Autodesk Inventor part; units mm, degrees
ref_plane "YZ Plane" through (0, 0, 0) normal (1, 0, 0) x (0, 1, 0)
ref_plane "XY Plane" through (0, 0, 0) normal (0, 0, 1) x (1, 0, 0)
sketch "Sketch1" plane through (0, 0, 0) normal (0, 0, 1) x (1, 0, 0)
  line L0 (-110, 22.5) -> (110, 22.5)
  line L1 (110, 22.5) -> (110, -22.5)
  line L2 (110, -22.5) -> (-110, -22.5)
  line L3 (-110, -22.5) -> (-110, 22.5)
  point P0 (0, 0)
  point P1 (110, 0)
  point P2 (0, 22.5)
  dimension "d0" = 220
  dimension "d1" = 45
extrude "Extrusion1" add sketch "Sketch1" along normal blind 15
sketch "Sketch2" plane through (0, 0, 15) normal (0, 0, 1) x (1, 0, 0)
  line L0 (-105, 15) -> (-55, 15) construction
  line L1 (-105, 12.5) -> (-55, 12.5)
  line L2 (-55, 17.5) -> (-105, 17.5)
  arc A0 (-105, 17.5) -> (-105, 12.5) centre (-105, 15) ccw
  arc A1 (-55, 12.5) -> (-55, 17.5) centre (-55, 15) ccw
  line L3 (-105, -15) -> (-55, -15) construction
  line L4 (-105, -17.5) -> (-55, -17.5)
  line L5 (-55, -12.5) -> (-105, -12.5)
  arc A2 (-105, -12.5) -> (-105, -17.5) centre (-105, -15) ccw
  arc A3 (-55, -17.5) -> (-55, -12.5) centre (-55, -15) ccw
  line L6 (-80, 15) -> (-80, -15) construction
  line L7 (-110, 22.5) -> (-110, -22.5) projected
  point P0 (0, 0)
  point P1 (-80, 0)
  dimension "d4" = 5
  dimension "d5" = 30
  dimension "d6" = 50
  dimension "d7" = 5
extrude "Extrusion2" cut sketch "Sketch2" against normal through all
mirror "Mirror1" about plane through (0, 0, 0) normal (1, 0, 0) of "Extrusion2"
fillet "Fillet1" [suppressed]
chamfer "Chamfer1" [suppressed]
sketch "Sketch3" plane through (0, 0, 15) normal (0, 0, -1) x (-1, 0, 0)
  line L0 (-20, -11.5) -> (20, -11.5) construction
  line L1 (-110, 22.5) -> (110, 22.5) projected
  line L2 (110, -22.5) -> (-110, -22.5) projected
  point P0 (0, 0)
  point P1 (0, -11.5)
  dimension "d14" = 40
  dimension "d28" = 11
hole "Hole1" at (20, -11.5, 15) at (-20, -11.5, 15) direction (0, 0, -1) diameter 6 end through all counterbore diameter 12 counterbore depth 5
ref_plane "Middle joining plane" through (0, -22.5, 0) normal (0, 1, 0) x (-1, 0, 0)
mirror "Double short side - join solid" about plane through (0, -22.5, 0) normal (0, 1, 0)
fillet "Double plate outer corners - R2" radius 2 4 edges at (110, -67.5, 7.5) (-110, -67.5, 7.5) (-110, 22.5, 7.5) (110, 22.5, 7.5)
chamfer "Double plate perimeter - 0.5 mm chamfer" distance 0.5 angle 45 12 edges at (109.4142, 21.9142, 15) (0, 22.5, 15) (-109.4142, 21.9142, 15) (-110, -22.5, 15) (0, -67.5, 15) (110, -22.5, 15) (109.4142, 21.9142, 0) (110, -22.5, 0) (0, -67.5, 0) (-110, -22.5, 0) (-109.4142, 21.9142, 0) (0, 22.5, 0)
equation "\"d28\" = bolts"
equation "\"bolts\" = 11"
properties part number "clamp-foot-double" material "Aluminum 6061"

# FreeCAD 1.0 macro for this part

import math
import FreeCAD as App
import Part
import Sketcher

V = App.Vector
Q = App.Units.Quantity


def edges_at(feature, points):
    """Names of the edges that pass closest to the given points."""
    edges = feature.Shape.Edges
    near = lambda p: min(range(len(edges)), key=lambda i: edges[i].distToShape(Part.Vertex(*p))[0])
    return sorted({f"Edge{near(p) + 1}" for p in points})

doc = App.newDocument("Part")
body = doc.addObject("PartDesign::Body", "Body")

# Sketch on XY plane
sketch1 = body.newObject("Sketcher::SketchObject", "Sketch")
sketch1.AttachmentSupport = (doc.getObject("XY_Plane"), [""])
sketch1.MapMode = "FlatFace"
sketch1.addGeometry([
    Part.LineSegment(V(110, 22.5, 0), V(-110, 22.5, 0)),
    Part.LineSegment(V(-110, 22.5, 0), V(-110, -22.5, 0)),
    Part.LineSegment(V(-110, -22.5, 0), V(110, -22.5, 0)),
    Part.LineSegment(V(110, -22.5, 0), V(110, 22.5, 0)),
], False)
sketch1.addConstraint([
    Sketcher.Constraint("Coincident", 0, 2, 1, 1),
    Sketcher.Constraint("Coincident", 1, 2, 2, 1),
    Sketcher.Constraint("Coincident", 2, 2, 3, 1),
    Sketcher.Constraint("Coincident", 3, 2, 0, 1),
    Sketcher.Constraint("Horizontal", 0),
    Sketcher.Constraint("Vertical", 1),
    Sketcher.Constraint("Horizontal", 2),
    Sketcher.Constraint("Vertical", 3),
    Sketcher.Constraint("Symmetric", 0, 2, 2, 2, -1, 1),
    Sketcher.Constraint("DistanceX", 0, 2, 0, 1, Q("220 mm")),
    Sketcher.Constraint("DistanceY", 1, 2, 1, 1, Q("45 mm")),
])
pad1 = body.newObject("PartDesign::Pad", "Pad")
pad1.Profile = sketch1
pad1.Length = 15

# Sketch on XY plane
sketch2 = body.newObject("Sketcher::SketchObject", "Sketch001")
sketch2.AttachmentSupport = (doc.getObject("XY_Plane"), [""])
sketch2.MapMode = "FlatFace"
sketch2.AttachmentOffset = App.Placement(V(0, 0, 15), App.Rotation())
sketch2.addGeometry([
    Part.ArcOfCircle(Part.Circle(V(-105, 15, 0), V(0, 0, 1), 2.5), math.radians(90), math.radians(270)),  # 0
    Part.LineSegment(V(-105, 12.5, 0), V(-55, 12.5, 0)),  # 1
    Part.ArcOfCircle(Part.Circle(V(-55, 15, 0), V(0, 0, 1), 2.5), math.radians(-90), math.radians(90)),  # 2
    Part.LineSegment(V(-55, 17.5, 0), V(-105, 17.5, 0)),  # 3
    Part.ArcOfCircle(Part.Circle(V(-105, -15, 0), V(0, 0, 1), 2.5), math.radians(90), math.radians(270)),  # 4
    Part.LineSegment(V(-105, -17.5, 0), V(-55, -17.5, 0)),  # 5
    Part.ArcOfCircle(Part.Circle(V(-55, -15, 0), V(0, 0, 1), 2.5), math.radians(-90), math.radians(90)),  # 6
    Part.LineSegment(V(-55, -12.5, 0), V(-105, -12.5, 0)),  # 7
], False)
sketch2.addConstraint([
    Sketcher.Constraint("Tangent", 0, 2, 1, 1),
    Sketcher.Constraint("Tangent", 1, 2, 2, 1),
    Sketcher.Constraint("Tangent", 2, 2, 3, 1),
    Sketcher.Constraint("Tangent", 3, 2, 0, 1),
    Sketcher.Constraint("Tangent", 4, 2, 5, 1),
    Sketcher.Constraint("Tangent", 5, 2, 6, 1),
    Sketcher.Constraint("Tangent", 6, 2, 7, 1),
    Sketcher.Constraint("Tangent", 7, 2, 4, 1),
    Sketcher.Constraint("Horizontal", 1),
    Sketcher.Constraint("Horizontal", 3),
    Sketcher.Constraint("Horizontal", 5),
    Sketcher.Constraint("Horizontal", 7),
    Sketcher.Constraint("Equal", 2, 4),
    Sketcher.Constraint("Symmetric", 0, 3, 4, 3, -1),
    Sketcher.Constraint("Vertical", 2, 3, 6, 3),
    Sketcher.Constraint("Radius", 0, Q("2.5 mm")),
    Sketcher.Constraint("DistanceX", 1, 1, 1, 2, Q("50 mm")),
    Sketcher.Constraint("DistanceY", 4, 3, 0, 3, Q("30 mm")),
    Sketcher.Constraint("DistanceX", 0, 3, -1, 1, Q("105 mm")),
])
pocket1 = body.newObject("PartDesign::Pocket", "Pocket")
pocket1.Profile = sketch2
pocket1.Type = "ThroughAll"
doc.recompute()

mirrored = body.newObject("PartDesign::Mirrored", "Mirrored")
mirrored.Originals = [pocket1]
mirrored.MirrorPlane = (doc.getObject("YZ_Plane"), [""])
body.Tip = mirrored

# Sketch on XY plane
sketch3 = body.newObject("Sketcher::SketchObject", "Sketch002")
sketch3.AttachmentSupport = (doc.getObject("XY_Plane"), [""])
sketch3.MapMode = "FlatFace"
sketch3.AttachmentOffset = App.Placement(V(0, 0, 15), App.Rotation())
sketch3.addGeometry([
    Part.Circle(V(20, -11.5, 0), V(0, 0, 1), 3),
    Part.Circle(V(-20, -11.5, 0), V(0, 0, 1), 3),
], False)
sketch3.addConstraint([
    Sketcher.Constraint("Equal", 0, 1),
    Sketcher.Constraint("Symmetric", 0, 3, 1, 3, -2),
    Sketcher.Constraint("Diameter", 0, Q("6 mm")),
    Sketcher.Constraint("DistanceX", -1, 1, 0, 3, Q("20 mm")),
    Sketcher.Constraint("DistanceY", 0, 3, -1, 1, Q("11.5 mm")),
])
doc.recompute()
hole = body.newObject("PartDesign::Hole", "Hole")
hole.Profile = sketch3
hole.ThreadType = "None"
hole.Diameter = 6
hole.DepthType = "ThroughAll"
hole.HoleCutType = "Counterbore"
hole.HoleCutDiameter = 12
hole.HoleCutDepth = 5
doc.recompute()

datumplane = body.newObject("PartDesign::Plane", "DatumPlane")
datumplane.AttachmentSupport = (doc.getObject("XZ_Plane"), [""])
datumplane.MapMode = "FlatFace"
datumplane.AttachmentOffset = App.Placement(V(0, 0, 22.5), App.Rotation())
mirrored2 = body.newObject("PartDesign::Mirrored", "Mirrored001")
mirrored2.TransformMode = "Transform body"
mirrored2.MirrorPlane = (datumplane, [""])
body.Tip = mirrored2
doc.recompute()

fillet = body.newObject("PartDesign::Fillet", "Fillet")
fillet.Base = (mirrored2, edges_at(mirrored2, [
    (110, -67.5, 7.5),
    (-110, -67.5, 7.5),
    (-110, 22.5, 7.5),
    (110, 22.5, 7.5),
]))
fillet.Radius = 2
doc.recompute()

chamfer = body.newObject("PartDesign::Chamfer", "Chamfer")
chamfer.Base = (fillet, edges_at(fillet, [
    (109.414, 21.914, 15),
    (0, 22.5, 15),
    (-109.414, 21.914, 15),
    (-110, -22.5, 15),
    (0, -67.5, 15),
    (110, -22.5, 15),
    (109.414, 21.914, 0),
    (110, -22.5, 0),
    (0, -67.5, 0),
    (-110, -22.5, 0),
    (-109.414, 21.914, 0),
    (0, 22.5, 0),
]))
chamfer.Size = 0.5

doc.recompute()
